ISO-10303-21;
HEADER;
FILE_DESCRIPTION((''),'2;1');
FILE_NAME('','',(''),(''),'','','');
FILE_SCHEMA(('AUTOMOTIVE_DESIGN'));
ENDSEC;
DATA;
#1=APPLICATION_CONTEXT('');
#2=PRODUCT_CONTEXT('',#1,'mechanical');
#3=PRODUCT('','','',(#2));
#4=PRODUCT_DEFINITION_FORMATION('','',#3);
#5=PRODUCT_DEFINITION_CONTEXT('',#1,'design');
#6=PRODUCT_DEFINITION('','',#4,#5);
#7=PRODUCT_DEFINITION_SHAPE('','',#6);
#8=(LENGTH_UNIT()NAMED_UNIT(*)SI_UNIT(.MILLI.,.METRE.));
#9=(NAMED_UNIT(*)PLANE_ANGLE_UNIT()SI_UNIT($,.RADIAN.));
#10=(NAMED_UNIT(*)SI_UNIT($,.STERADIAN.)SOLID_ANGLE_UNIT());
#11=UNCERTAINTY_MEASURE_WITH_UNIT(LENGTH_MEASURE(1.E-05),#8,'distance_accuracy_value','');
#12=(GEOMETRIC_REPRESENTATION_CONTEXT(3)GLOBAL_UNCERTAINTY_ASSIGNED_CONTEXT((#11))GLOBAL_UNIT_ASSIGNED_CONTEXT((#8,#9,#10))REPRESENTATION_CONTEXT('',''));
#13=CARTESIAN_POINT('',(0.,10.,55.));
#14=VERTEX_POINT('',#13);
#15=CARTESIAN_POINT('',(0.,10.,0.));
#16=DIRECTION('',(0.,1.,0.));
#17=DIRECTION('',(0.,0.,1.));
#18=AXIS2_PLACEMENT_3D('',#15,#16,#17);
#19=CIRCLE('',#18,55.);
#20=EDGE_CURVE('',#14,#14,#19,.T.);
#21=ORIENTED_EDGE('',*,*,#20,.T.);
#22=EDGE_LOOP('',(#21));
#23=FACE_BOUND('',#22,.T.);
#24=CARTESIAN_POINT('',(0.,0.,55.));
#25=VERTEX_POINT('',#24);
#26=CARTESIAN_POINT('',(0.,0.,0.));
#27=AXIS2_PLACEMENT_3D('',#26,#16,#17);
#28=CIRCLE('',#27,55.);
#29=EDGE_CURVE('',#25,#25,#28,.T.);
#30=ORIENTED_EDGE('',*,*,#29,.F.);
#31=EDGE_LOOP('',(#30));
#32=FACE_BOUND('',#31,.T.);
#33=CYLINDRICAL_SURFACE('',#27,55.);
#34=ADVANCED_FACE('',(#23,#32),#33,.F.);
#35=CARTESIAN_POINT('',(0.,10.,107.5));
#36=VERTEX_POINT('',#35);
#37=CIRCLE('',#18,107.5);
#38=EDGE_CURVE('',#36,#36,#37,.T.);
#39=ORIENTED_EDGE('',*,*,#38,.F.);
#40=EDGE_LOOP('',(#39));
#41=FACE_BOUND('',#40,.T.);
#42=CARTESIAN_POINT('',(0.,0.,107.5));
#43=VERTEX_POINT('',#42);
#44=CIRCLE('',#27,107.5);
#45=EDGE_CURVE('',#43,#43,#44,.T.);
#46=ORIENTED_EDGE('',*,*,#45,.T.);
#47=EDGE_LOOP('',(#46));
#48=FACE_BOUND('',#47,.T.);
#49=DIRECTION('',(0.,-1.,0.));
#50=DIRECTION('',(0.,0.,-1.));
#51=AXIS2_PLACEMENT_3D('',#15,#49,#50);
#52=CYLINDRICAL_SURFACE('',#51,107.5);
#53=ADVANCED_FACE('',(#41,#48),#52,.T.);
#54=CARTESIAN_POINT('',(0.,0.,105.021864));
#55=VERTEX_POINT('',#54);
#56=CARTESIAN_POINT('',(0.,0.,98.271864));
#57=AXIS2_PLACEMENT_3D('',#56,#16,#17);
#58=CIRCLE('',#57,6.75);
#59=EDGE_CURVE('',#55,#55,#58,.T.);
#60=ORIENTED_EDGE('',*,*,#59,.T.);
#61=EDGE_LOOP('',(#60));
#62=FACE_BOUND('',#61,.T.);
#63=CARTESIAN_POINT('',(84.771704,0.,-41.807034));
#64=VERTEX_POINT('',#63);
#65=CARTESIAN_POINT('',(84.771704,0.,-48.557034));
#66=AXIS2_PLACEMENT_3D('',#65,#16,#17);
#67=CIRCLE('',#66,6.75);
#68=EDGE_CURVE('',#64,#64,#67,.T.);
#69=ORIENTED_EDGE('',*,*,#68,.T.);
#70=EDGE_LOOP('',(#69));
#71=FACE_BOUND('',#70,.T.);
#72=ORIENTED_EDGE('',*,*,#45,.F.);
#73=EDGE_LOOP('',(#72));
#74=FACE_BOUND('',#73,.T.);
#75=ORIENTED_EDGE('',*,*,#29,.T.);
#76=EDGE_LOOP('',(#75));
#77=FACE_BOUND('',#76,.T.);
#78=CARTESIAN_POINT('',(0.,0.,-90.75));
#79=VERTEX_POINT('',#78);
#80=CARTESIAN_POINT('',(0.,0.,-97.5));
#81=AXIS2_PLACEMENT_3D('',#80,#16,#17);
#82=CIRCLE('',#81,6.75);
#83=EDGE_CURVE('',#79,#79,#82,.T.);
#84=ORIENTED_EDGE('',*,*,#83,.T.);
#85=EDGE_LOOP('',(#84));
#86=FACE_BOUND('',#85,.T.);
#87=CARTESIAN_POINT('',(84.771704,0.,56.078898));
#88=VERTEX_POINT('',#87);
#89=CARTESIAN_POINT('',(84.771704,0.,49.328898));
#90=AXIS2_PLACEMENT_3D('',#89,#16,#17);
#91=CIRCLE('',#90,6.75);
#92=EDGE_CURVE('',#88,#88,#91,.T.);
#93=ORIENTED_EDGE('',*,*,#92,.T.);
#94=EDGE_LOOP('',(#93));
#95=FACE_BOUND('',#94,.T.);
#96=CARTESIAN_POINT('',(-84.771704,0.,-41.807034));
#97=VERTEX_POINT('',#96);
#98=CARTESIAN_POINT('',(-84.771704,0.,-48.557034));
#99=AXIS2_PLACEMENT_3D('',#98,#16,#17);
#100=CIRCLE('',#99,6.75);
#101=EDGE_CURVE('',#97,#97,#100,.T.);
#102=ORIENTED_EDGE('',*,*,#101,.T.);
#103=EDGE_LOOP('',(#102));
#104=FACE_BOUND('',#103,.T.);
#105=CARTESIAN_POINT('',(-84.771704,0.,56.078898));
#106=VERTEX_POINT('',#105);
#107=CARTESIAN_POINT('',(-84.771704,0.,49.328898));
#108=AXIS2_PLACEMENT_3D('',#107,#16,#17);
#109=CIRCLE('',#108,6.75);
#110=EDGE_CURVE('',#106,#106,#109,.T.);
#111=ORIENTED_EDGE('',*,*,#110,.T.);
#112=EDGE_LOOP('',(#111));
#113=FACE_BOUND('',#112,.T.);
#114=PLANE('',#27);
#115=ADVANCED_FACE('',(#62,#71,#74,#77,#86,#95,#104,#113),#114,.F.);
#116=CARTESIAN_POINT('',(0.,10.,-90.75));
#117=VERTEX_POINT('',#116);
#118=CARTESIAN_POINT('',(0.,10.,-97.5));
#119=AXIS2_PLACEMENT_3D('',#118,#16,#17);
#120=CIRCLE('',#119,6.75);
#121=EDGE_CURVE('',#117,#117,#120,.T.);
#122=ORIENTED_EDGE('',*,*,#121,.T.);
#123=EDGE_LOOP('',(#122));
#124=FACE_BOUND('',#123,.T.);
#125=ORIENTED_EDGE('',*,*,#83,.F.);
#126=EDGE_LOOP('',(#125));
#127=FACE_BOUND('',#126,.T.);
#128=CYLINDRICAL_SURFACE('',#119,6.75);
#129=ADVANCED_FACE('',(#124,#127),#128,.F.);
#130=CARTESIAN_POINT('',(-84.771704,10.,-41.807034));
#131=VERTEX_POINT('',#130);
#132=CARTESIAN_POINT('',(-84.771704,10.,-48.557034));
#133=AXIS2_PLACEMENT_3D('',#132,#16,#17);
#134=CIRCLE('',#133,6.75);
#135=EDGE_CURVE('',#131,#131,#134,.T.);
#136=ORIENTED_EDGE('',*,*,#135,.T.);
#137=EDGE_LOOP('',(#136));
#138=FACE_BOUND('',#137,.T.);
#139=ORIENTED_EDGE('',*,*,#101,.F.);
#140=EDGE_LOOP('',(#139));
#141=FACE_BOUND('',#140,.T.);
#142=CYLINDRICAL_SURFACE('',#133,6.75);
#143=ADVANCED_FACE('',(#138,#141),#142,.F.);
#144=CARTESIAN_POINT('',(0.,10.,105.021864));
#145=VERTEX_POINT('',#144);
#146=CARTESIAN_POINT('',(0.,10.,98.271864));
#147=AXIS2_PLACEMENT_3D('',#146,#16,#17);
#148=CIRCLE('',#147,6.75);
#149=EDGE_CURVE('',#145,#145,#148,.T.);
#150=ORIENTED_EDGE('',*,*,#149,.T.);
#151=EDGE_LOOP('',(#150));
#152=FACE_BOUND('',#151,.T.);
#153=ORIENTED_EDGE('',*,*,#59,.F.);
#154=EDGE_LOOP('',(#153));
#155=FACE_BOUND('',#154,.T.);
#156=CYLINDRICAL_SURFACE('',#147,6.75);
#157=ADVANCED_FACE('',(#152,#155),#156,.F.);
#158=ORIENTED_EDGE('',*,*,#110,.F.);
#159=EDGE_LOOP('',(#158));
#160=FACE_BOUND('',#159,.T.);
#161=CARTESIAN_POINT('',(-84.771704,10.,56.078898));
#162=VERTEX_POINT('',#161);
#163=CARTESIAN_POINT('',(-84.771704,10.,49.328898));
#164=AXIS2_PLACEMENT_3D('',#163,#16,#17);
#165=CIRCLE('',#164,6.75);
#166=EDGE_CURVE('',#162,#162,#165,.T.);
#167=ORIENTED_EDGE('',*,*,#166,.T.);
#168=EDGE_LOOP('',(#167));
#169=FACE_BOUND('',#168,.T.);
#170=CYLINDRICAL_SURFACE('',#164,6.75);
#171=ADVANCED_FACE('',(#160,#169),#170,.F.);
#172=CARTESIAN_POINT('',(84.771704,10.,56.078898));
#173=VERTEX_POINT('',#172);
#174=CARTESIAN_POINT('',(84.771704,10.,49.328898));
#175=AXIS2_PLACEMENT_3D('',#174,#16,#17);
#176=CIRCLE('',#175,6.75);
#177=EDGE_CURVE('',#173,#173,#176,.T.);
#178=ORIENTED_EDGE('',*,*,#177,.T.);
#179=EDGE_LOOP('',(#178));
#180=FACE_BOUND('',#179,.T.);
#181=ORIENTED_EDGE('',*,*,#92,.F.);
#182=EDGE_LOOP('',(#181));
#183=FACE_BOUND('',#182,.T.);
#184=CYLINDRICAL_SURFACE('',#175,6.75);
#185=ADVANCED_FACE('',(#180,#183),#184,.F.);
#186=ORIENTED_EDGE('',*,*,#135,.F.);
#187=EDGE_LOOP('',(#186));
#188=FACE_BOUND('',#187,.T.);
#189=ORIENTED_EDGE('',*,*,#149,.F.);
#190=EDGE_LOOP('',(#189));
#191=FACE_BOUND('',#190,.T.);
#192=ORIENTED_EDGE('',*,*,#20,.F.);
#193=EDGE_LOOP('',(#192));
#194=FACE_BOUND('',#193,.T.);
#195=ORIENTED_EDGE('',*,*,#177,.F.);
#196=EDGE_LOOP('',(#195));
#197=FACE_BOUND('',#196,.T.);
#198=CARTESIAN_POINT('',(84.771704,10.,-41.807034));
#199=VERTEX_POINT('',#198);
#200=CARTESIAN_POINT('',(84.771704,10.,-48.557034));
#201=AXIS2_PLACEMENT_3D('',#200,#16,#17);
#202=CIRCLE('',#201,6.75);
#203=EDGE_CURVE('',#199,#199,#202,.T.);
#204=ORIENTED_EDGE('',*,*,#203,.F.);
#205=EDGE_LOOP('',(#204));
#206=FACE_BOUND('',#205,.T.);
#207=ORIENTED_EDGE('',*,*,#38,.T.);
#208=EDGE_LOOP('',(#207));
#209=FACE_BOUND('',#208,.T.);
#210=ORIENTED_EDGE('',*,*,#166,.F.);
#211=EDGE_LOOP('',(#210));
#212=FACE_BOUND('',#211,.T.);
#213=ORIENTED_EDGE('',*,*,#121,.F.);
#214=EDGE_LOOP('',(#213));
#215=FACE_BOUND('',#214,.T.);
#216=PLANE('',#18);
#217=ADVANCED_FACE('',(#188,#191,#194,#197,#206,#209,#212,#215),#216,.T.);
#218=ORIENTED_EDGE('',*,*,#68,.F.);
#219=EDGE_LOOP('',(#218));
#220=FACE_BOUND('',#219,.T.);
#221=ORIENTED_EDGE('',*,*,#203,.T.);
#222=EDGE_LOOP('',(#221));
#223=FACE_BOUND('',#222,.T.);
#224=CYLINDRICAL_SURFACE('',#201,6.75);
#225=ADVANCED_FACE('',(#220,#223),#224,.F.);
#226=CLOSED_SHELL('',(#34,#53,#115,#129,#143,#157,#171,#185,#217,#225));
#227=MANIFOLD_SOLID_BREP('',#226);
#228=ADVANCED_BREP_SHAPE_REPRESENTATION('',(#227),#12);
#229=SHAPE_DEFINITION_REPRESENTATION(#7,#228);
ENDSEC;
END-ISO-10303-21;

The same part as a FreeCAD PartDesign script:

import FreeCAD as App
import Part
import Sketcher
Q = App.Units.Quantity

doc = App.newDocument("Part")
body = doc.addObject("PartDesign::Body", "Body")

# Sketch on XZ plane
sketch1 = body.newObject("Sketcher::SketchObject", "Sketch")
sketch1.AttachmentSupport = (doc.getObject("XZ_Plane"), [""])
sketch1.MapMode = "FlatFace"
sketch1.addGeometry(Part.Circle(App.Vector(0, 0, 0), App.Vector(0, 0, 1), 107.5), False)
sketch1.addConstraint(Sketcher.Constraint("Coincident", 0, 3, -1, 1))
sketch1.addConstraint(Sketcher.Constraint("Diameter", 0, 215.0))
pad1 = body.newObject("PartDesign::Pad", "Pad")
pad1.Profile = sketch1
pad1.Length = 10
pad1.Reversed = True

# Sketch on YZ plane
sketch2 = body.newObject("Sketcher::SketchObject", "Sketch001")
sketch2.AttachmentSupport = (doc.getObject("YZ_Plane"), [""])
sketch2.MapMode = "FlatFace"
sketch2.addGeometry(Part.LineSegment(App.Vector(-37.555809, -97.5, 0), App.Vector(10, -97.5, 0)), False)
sketch2.addGeometry(Part.LineSegment(App.Vector(10, -97.5, 0), App.Vector(10, -90.75, 0)), False)
sketch2.addGeometry(Part.LineSegment(App.Vector(10, -90.75, 0), App.Vector(-33.5, -90.75, 0)), False)
sketch2.addGeometry(Part.LineSegment(App.Vector(-33.5, -90.75, 0), App.Vector(-37.555809, -97.5, 0)), False)
sketch2.addGeometry(Part.LineSegment(App.Vector(10, -97.5, 0), App.Vector(-37.555809, -97.5, 0)), True)  # axis
sketch2.addConstraint(Sketcher.Constraint("Coincident", 0, 2, 1, 1))
sketch2.addConstraint(Sketcher.Constraint("Coincident", 1, 2, 2, 1))
sketch2.addConstraint(Sketcher.Constraint("Coincident", 2, 2, 3, 1))
sketch2.addConstraint(Sketcher.Constraint("Coincident", 3, 2, 0, 1))
sketch2.addConstraint(Sketcher.Constraint("Horizontal", 0))
sketch2.addConstraint(Sketcher.Constraint("Vertical", 1))
sketch2.addConstraint(Sketcher.Constraint("Horizontal", 2))
sketch2.addConstraint(Sketcher.Constraint("Horizontal", 4))
sketch2.addConstraint(Sketcher.Constraint("Coincident", 4, 1, 0, 2))
sketch2.addConstraint(Sketcher.Constraint("Equal", 0, 4))
sketch2.addConstraint(Sketcher.Constraint("Angle", 3, Q("-121 deg")))
sketch2.addConstraint(Sketcher.Constraint("DistanceX", 2, 2, 2, 1, 43.5))
sketch2.addConstraint(Sketcher.Constraint("DistanceX", -1, 1, 0, 2, 10.0))
sketch2.addConstraint(Sketcher.Constraint("DistanceY", 1, 1, 1, 2, 6.75))
sketch2.addConstraint(Sketcher.Constraint("DistanceY", 0, 2, -1, 1, 97.5))
groove = body.newObject("PartDesign::Groove", "Groove")
groove.Profile = sketch2
groove.ReferenceAxis = (sketch2, ["Axis0"])
groove.Angle = 360
doc.recompute()

datumline = body.newObject("PartDesign::Line", "DatumLine")
datumline.Placement = App.Placement(App.Vector(0, 0, 0.385932), App.Rotation(App.Vector(0, 0, 1), App.Vector(0, 1, 0)))
polarpattern = body.newObject("PartDesign::PolarPattern", "PolarPattern")
polarpattern.Originals = [groove]
polarpattern.Axis = (datumline, [""])
polarpattern.Angle = 360
polarpattern.Occurrences = 6
body.Tip = polarpattern

# Sketch on XZ plane
sketch3 = body.newObject("Sketcher::SketchObject", "Sketch002")
sketch3.AttachmentSupport = (doc.getObject("XZ_Plane"), [""])
sketch3.MapMode = "FlatFace"
sketch3.AttachmentOffset = App.Placement(App.Vector(0, 0, -10), App.Rotation())
sketch3.addGeometry(Part.Circle(App.Vector(0, 0, 0), App.Vector(0, 0, 1), 55), False)
sketch3.addConstraint(Sketcher.Constraint("Coincident", 0, 3, -1, 1))
sketch3.addConstraint(Sketcher.Constraint("Diameter", 0, 110.0))
pocket1 = body.newObject("PartDesign::Pocket", "Pocket")
pocket1.Profile = sketch3
pocket1.Length = 10
pocket1.Reversed = True

doc.recompute()
